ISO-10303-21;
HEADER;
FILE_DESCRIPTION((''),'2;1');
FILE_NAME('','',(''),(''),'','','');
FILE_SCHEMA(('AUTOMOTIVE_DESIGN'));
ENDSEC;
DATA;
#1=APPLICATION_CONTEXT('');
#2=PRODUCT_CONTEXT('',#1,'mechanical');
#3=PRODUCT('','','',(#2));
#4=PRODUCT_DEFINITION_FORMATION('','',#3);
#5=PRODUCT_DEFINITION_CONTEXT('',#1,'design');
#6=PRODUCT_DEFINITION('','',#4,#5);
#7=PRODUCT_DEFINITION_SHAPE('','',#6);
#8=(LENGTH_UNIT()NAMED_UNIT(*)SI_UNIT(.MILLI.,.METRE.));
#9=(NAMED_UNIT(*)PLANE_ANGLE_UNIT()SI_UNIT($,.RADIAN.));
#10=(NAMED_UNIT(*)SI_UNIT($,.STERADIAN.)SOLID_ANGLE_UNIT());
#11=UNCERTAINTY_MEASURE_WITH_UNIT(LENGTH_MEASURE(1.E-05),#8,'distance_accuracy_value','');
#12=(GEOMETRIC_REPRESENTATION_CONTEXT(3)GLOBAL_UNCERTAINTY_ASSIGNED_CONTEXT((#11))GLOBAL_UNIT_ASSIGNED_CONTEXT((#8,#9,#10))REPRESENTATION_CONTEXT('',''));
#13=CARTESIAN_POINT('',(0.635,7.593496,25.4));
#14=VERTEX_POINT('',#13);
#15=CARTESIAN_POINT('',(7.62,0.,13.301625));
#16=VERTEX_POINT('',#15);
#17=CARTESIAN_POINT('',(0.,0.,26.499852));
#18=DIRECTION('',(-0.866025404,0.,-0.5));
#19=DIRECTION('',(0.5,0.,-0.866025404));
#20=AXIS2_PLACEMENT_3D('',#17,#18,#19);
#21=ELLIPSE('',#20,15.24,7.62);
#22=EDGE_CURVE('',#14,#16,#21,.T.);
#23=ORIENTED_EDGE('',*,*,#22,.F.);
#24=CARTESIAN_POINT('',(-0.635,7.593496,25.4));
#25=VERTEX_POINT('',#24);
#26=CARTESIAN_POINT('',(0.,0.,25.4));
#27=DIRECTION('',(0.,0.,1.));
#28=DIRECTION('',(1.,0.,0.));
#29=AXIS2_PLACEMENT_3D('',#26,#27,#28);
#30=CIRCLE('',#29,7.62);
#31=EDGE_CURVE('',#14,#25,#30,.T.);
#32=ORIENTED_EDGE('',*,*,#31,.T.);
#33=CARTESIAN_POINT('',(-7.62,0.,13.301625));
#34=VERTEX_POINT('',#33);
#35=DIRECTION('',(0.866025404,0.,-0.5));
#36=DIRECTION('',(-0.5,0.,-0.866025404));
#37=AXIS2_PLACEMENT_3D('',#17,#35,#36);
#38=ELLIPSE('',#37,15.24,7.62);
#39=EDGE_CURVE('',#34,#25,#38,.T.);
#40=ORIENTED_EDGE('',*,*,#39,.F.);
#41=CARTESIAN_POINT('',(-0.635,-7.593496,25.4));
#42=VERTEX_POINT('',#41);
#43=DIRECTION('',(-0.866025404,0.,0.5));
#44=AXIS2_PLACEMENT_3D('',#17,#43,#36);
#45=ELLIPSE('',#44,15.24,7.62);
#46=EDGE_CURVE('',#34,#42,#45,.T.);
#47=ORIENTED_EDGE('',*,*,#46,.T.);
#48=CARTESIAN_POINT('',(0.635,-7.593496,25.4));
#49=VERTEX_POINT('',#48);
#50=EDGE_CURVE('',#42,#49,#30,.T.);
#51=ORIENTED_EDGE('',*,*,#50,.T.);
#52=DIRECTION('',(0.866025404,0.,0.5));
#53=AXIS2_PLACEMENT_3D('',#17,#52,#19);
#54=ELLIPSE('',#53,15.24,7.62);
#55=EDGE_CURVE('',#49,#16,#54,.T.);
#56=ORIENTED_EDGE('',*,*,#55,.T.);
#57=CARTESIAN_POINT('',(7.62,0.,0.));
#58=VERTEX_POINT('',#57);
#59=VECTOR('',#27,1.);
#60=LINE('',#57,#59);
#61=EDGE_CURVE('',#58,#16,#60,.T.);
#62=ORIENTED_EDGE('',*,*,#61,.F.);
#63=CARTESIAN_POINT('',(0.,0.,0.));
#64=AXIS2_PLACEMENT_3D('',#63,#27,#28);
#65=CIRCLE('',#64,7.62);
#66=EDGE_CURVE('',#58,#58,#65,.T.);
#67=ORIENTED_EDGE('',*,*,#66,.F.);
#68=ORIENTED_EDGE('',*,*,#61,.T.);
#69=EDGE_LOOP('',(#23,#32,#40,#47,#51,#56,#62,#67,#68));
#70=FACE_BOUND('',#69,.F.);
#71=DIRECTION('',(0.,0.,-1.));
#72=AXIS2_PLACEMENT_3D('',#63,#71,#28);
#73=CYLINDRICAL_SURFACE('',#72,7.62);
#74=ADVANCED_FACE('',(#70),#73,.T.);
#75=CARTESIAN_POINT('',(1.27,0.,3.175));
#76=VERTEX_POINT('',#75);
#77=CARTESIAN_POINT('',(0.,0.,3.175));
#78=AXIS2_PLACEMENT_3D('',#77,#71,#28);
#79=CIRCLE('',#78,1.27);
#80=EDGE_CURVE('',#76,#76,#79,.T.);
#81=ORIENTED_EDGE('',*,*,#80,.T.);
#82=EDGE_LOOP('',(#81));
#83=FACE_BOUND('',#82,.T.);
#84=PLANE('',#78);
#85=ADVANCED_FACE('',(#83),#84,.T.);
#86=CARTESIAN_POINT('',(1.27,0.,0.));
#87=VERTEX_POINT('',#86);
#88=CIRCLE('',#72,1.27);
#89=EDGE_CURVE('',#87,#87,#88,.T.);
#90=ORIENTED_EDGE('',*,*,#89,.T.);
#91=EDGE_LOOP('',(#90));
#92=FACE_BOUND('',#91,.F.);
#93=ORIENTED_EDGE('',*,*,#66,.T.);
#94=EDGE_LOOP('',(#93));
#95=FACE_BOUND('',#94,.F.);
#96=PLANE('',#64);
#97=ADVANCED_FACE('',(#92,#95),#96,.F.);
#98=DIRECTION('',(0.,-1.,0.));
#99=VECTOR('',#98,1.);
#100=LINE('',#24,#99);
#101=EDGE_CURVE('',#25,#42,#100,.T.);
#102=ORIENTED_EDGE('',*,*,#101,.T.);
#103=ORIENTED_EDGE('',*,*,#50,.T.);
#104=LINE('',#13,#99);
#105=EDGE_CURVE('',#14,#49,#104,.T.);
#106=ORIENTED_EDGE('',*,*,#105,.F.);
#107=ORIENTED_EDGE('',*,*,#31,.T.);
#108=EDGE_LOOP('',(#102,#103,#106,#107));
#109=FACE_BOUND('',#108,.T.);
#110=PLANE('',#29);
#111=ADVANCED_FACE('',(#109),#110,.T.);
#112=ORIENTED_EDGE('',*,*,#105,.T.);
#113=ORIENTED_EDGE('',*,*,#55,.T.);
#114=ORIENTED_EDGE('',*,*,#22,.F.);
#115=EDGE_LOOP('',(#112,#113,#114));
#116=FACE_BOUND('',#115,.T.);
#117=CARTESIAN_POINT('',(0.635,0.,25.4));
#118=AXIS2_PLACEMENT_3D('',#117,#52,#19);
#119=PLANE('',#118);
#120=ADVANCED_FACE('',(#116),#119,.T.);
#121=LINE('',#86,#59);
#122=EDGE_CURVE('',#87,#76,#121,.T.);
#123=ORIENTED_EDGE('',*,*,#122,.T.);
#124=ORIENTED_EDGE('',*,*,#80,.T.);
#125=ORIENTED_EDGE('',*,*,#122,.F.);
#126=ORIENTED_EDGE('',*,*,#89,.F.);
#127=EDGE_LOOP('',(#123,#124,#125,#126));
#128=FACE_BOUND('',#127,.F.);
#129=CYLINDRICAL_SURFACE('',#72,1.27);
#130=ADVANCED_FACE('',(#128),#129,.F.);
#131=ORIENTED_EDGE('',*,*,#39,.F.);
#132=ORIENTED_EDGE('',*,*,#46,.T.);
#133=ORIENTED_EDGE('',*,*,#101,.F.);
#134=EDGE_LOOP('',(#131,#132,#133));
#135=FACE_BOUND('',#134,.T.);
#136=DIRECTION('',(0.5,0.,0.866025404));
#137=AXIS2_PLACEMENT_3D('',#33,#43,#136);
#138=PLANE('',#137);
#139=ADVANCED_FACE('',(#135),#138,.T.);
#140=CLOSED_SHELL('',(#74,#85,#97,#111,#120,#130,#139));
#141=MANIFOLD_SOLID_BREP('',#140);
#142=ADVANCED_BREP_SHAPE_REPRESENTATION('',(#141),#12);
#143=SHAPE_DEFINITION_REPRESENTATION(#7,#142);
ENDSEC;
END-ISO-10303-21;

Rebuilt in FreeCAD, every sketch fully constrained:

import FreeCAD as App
import Part
import Sketcher

V = App.Vector
Q = App.Units.Quantity


def add_polygon(sketch, points):
    """Adds a closed chain of lines whose ends are joined by coincident constraints."""
    first, n = sketch.GeometryCount, len(points)
    for a, b in zip(points, points[1:] + points[:1]):
        sketch.addGeometry(Part.LineSegment(App.Vector(*a, 0), App.Vector(*b, 0)), False)
    for i in range(n):
        sketch.addConstraint(Sketcher.Constraint("Coincident", first + i, 2, first + (i + 1) % n, 1))

doc = App.newDocument("Part")
body = doc.addObject("PartDesign::Body", "Body")

sketch1 = body.newObject("Sketcher::SketchObject", "Sketch")
sketch1.AttachmentSupport = (doc.getObject("XY_Plane"), [""])
sketch1.MapMode = "FlatFace"
sketch1.addGeometry(Part.Circle(V(0, 0, 0), V(0, 0, 1), 7.62), False)
sketch1.addConstraint([
    Sketcher.Constraint("Coincident", 0, 3, -1, 1),
    Sketcher.Constraint("Diameter", 0, Q("0.6 in")),
])
pad1 = body.newObject("PartDesign::Pad", "Pad")
pad1.Profile = sketch1
pad1.Length = Q("1 in")

sketch2 = body.newObject("Sketcher::SketchObject", "Sketch001")
sketch2.AttachmentSupport = (doc.getObject("XZ_Plane"), [""])
sketch2.MapMode = "FlatFace"
add_polygon(sketch2, [(-7.62, 36.512836), (-7.62, 13.301625), (-0.635, 25.4), (0.635, 25.4), (7.62, 13.301625), (7.62, 36.512836)])
sketch2.addConstraint([
    Sketcher.Constraint("Vertical", 0),
    Sketcher.Constraint("Horizontal", 2),
    Sketcher.Constraint("Vertical", 4),
    Sketcher.Constraint("Horizontal", 5),
    Sketcher.Constraint("Symmetric", 0, 2, 3, 2, -2),
    Sketcher.Constraint("Equal", 1, 3),
    Sketcher.Constraint("DistanceX", 5, 2, 5, 1, Q("0.6 in")),
    Sketcher.Constraint("DistanceY", -1, 1, 1, 2, Q("1 in")),
    Sketcher.Constraint("Angle", 1, Q("60 deg")),
    Sketcher.Constraint("DistanceX", 2, 1, 2, 2, Q("0.05 in")),
    Sketcher.Constraint("DistanceY", 0, 2, 0, 1, Q("23.211211 mm")),
])
pocket1 = body.newObject("PartDesign::Pocket", "Pocket")
pocket1.Profile = sketch2
pocket1.Type = "ThroughAll"
pocket1.Midplane = True

sketch3 = body.newObject("Sketcher::SketchObject", "Sketch002")
sketch3.AttachmentSupport = (doc.getObject("XY_Plane"), [""])
sketch3.MapMode = "FlatFace"
sketch3.addGeometry(Part.Circle(V(0, 0, 0), V(0, 0, 1), 1.27), False)
sketch3.addConstraint([
    Sketcher.Constraint("Coincident", 0, 3, -1, 1),
    Sketcher.Constraint("Diameter", 0, Q("0.1 in")),
])
pocket2 = body.newObject("PartDesign::Pocket", "Pocket001")
pocket2.Profile = sketch3
pocket2.Length = Q("0.125 in")
pocket2.Reversed = True

doc.recompute()
